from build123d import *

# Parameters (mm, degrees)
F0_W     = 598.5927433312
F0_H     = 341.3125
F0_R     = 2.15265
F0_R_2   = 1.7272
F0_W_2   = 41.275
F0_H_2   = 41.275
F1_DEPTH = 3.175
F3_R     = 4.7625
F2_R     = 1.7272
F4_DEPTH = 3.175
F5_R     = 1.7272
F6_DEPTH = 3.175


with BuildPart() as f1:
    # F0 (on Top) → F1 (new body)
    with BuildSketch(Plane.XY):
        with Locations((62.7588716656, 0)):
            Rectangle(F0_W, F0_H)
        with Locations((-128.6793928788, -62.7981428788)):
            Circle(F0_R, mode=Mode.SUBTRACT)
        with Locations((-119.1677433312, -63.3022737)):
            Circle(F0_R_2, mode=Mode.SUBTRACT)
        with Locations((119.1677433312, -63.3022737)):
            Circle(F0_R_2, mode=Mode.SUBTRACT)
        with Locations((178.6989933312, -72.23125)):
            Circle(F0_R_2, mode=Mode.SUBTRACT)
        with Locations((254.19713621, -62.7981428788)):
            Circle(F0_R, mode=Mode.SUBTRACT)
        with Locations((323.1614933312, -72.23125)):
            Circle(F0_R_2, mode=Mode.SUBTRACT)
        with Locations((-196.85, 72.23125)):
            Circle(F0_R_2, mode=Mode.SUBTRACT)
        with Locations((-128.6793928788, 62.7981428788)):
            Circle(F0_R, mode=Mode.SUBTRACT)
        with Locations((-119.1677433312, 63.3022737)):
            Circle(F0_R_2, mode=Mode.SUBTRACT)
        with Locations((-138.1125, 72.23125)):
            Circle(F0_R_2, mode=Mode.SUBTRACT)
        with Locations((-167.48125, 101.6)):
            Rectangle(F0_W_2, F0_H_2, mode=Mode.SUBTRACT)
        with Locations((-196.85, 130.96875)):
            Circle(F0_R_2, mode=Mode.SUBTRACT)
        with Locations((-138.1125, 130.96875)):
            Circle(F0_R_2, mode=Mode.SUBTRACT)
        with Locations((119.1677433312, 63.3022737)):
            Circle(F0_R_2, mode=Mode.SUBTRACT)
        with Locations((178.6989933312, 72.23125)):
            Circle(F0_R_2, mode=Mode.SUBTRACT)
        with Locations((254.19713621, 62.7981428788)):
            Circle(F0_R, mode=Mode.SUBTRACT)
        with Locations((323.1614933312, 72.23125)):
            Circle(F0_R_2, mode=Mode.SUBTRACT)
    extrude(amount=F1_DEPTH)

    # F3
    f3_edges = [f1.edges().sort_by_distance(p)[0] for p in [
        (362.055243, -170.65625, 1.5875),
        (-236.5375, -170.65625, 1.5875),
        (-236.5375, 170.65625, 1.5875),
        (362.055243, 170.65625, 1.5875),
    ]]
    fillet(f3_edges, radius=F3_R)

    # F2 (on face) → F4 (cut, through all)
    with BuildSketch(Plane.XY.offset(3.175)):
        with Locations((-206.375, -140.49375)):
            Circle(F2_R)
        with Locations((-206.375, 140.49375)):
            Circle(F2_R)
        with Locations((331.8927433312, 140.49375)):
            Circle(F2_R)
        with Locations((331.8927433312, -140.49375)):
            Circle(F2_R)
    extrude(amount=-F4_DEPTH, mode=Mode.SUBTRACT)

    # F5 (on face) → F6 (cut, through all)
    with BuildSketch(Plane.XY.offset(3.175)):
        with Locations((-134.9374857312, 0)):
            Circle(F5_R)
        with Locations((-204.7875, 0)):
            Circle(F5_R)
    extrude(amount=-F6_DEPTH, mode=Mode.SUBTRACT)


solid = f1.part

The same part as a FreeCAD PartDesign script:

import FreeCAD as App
import Part
import Sketcher
Q = App.Units.Quantity


def edges_at(feature, points):
    """Names of the edges that pass closest to the given points."""
    edges = feature.Shape.Edges
    near = lambda p: min(range(len(edges)), key=lambda i: edges[i].distToShape(Part.Vertex(*p))[0])
    return sorted({f"Edge{near(p) + 1}" for p in points})

doc = App.newDocument("Part")
body = doc.addObject("PartDesign::Body", "Body")

sketch1 = doc.addObject("Sketcher::SketchObject", "Sketch")
body.addObject(sketch1)
sketch1.AttachmentSupport = (doc.XY_Plane, [""])
sketch1.MapMode = "FlatFace"
sketch1.addGeometry([
    Part.LineSegment(App.Vector(-236.5375, 170.65625, 0), App.Vector(-236.5375, -170.65625, 0)),
    Part.LineSegment(App.Vector(-236.5375, -170.65625, 0), App.Vector(362.055243, -170.65625, 0)),
    Part.LineSegment(App.Vector(362.055243, -170.65625, 0), App.Vector(362.055243, 170.65625, 0)),
    Part.LineSegment(App.Vector(362.055243, 170.65625, 0), App.Vector(-236.5375, 170.65625, 0)),
    Part.Circle(App.Vector(-128.679393, -62.798143, 0), App.Vector(0, 0, 1), 2.15265),
    Part.Circle(App.Vector(-119.167743, -63.302274, 0), App.Vector(0, 0, 1), 1.7272),
    Part.Circle(App.Vector(119.167743, -63.302274, 0), App.Vector(0, 0, 1), 1.7272),
    Part.Circle(App.Vector(178.698993, -72.23125, 0), App.Vector(0, 0, 1), 1.7272),
    Part.Circle(App.Vector(254.197136, -62.798143, 0), App.Vector(0, 0, 1), 2.15265),
    Part.Circle(App.Vector(323.161493, -72.23125, 0), App.Vector(0, 0, 1), 1.7272),
    Part.Circle(App.Vector(-196.85, 72.23125, 0), App.Vector(0, 0, 1), 1.7272),
    Part.Circle(App.Vector(-138.1125, 72.23125, 0), App.Vector(0, 0, 1), 1.7272),
    Part.Circle(App.Vector(-128.679393, 62.798143, 0), App.Vector(0, 0, 1), 2.15265),
    Part.Circle(App.Vector(-119.167743, 63.302274, 0), App.Vector(0, 0, 1), 1.7272),
    Part.LineSegment(App.Vector(-146.84375, 80.9625, 0), App.Vector(-188.11875, 80.9625, 0)),
    Part.LineSegment(App.Vector(-188.11875, 80.9625, 0), App.Vector(-188.11875, 122.2375, 0)),
    Part.LineSegment(App.Vector(-188.11875, 122.2375, 0), App.Vector(-146.84375, 122.2375, 0)),
    Part.LineSegment(App.Vector(-146.84375, 122.2375, 0), App.Vector(-146.84375, 80.9625, 0)),
    Part.Circle(App.Vector(-196.85, 130.96875, 0), App.Vector(0, 0, 1), 1.7272),
    Part.Circle(App.Vector(-138.1125, 130.96875, 0), App.Vector(0, 0, 1), 1.7272),
    Part.Circle(App.Vector(119.167743, 63.302274, 0), App.Vector(0, 0, 1), 1.7272),
    Part.Circle(App.Vector(178.698993, 72.23125, 0), App.Vector(0, 0, 1), 1.7272),
    Part.Circle(App.Vector(254.197136, 62.798143, 0), App.Vector(0, 0, 1), 2.15265),
    Part.Circle(App.Vector(323.161493, 72.23125, 0), App.Vector(0, 0, 1), 1.7272),
], False)
sketch1.addConstraint([
    Sketcher.Constraint("Coincident", 0, 2, 1, 1),
    Sketcher.Constraint("Coincident", 1, 2, 2, 1),
    Sketcher.Constraint("Coincident", 2, 2, 3, 1),
    Sketcher.Constraint("Coincident", 3, 2, 0, 1),
    Sketcher.Constraint("Coincident", 14, 2, 15, 1),
    Sketcher.Constraint("Coincident", 15, 2, 16, 1),
    Sketcher.Constraint("Coincident", 16, 2, 17, 1),
    Sketcher.Constraint("Coincident", 17, 2, 14, 1),
    Sketcher.Constraint("Vertical", 0),
    Sketcher.Constraint("Horizontal", 1),
    Sketcher.Constraint("Vertical", 2),
    Sketcher.Constraint("Horizontal", 3),
    Sketcher.Constraint("Horizontal", 14),
    Sketcher.Constraint("Vertical", 15),
    Sketcher.Constraint("Horizontal", 16),
    Sketcher.Constraint("Vertical", 17),
    Sketcher.Constraint("Equal", 5, 6),
    Sketcher.Constraint("Equal", 6, 7),
    Sketcher.Constraint("Equal", 4, 8),
    Sketcher.Constraint("Equal", 7, 9),
    Sketcher.Constraint("Equal", 9, 10),
    Sketcher.Constraint("Equal", 10, 11),
    Sketcher.Constraint("Equal", 8, 12),
    Sketcher.Constraint("Equal", 11, 13),
    Sketcher.Constraint("Equal", 13, 18),
    Sketcher.Constraint("Equal", 18, 19),
    Sketcher.Constraint("Equal", 19, 20),
    Sketcher.Constraint("Equal", 20, 21),
    Sketcher.Constraint("Equal", 12, 22),
    Sketcher.Constraint("Equal", 21, 23),
    Sketcher.Constraint("Symmetric", 6, 3, 13, 3, -1, 1),
    Sketcher.Constraint("Symmetric", 5, 3, 20, 3, -1, 1),
    Sketcher.Constraint("Symmetric", 5, 3, 6, 3, -2),
    Sketcher.Constraint("Symmetric", 4, 3, 12, 3, -1),
    Sketcher.Constraint("Symmetric", 7, 3, 21, 3, -1),
    Sketcher.Constraint("Symmetric", 8, 3, 22, 3, -1),
    Sketcher.Constraint("Symmetric", 9, 3, 23, 3, -1),
    Sketcher.Constraint("Horizontal", 4, 3, 8, 3),
    Sketcher.Constraint("Horizontal", 7, 3, 9, 3),
    Sketcher.Constraint("Horizontal", 10, 3, 11, 3),
    Sketcher.Constraint("Horizontal", 18, 3, 19, 3),
    Sketcher.Constraint("Horizontal", 11, 3, 21, 3),
    Sketcher.Constraint("Vertical", 10, 3, 18, 3),
    Sketcher.Constraint("Vertical", 11, 3, 19, 3),
    Sketcher.Constraint("Equal", 16, 15),
    Sketcher.Constraint("Diameter", 5, Q("0.136 in")),
    Sketcher.Constraint("Diameter", 4, Q("0.1695 in")),
    Sketcher.Constraint("DistanceX", 14, 2, 14, 1, Q("1.625 in")),
    Sketcher.Constraint("DistanceY", 0, 2, 0, 1, Q("13.4375 in")),
    Sketcher.Constraint("DistanceX", 10, 3, -1, 1, Q("7.75 in")),
    Sketcher.Constraint("DistanceY", 7, 3, -1, 1, Q("2.84375 in")),
    Sketcher.Constraint("DistanceX", 11, 3, -1, 1, Q("5.4375 in")),
    Sketcher.Constraint("DistanceY", -1, 1, 18, 3, Q("5.15625 in")),
    Sketcher.Constraint("DistanceX", 0, 2, -1, 1, Q("9.3125 in")),
    Sketcher.Constraint("DistanceY", 0, 2, -1, 1, Q("6.71875 in")),
    Sketcher.Constraint("DistanceX", 14, 2, -1, 1, Q("7.40625 in")),
    Sketcher.Constraint("DistanceY", -1, 1, 14, 2, Q("3.1875 in")),
    Sketcher.Constraint("DistanceX", 6, 3, 7, 3, Q("2.34375 in")),
    Sketcher.Constraint("DistanceX", 7, 3, 9, 3, Q("5.6875 in")),
    Sketcher.Constraint("DistanceX", 9, 3, 1, 2, Q("1.53125 in")),
    Sketcher.Constraint("DistanceX", 1, 1, 1, 2, Q("598.592743 mm")),
    Sketcher.Constraint("DistanceX", 4, 3, 5, 3, Q("9.51165 mm")),
    Sketcher.Constraint("DistanceY", 5, 3, 4, 3, Q("0.504131 mm")),
    Sketcher.Constraint("DistanceX", 5, 3, 8, 3, Q("373.36488 mm")),
    Sketcher.Constraint("DistanceY", 4, 3, -1, 1, Q("62.798143 mm")),
])
pad1 = doc.addObject("PartDesign::Pad", "Pad")
body.addObject(pad1)
pad1.Profile = sketch1
pad1.Length = Q("0.125 in")
doc.recompute()

fillet = doc.addObject("PartDesign::Fillet", "Fillet")
body.addObject(fillet)
fillet.Base = (pad1, edges_at(pad1, [
    (362.055, -170.656, 1.587),
    (-236.537, -170.656, 1.587),
    (-236.537, 170.656, 1.587),
    (362.055, 170.656, 1.587),
]))
fillet.Radius = Q("0.1875 in")

sketch2 = doc.addObject("Sketcher::SketchObject", "Sketch001")
body.addObject(sketch2)
sketch2.AttachmentSupport = (doc.XY_Plane, [""])
sketch2.MapMode = "FlatFace"
sketch2.AttachmentOffset = App.Placement(App.Vector(0, 0, 0.125 * 25.4), App.Rotation())
sketch2.addGeometry([
    Part.Circle(App.Vector(-206.375, -140.49375, 0), App.Vector(0, 0, 1), 1.7272),
    Part.Circle(App.Vector(-206.375, 140.49375, 0), App.Vector(0, 0, 1), 1.7272),
    Part.Circle(App.Vector(331.892743, 140.49375, 0), App.Vector(0, 0, 1), 1.7272),
    Part.Circle(App.Vector(331.892743, -140.49375, 0), App.Vector(0, 0, 1), 1.7272),
], False)
sketch2.addConstraint([
    Sketcher.Constraint("Equal", 0, 1),
    Sketcher.Constraint("Equal", 1, 2),
    Sketcher.Constraint("Equal", 2, 3),
    Sketcher.Constraint("Symmetric", 0, 3, 1, 3, -1),
    Sketcher.Constraint("Symmetric", 2, 3, 3, 3, -1),
    Sketcher.Constraint("Horizontal", 1, 3, 2, 3),
    Sketcher.Constraint("Diameter", 0, Q("0.136 in")),
    Sketcher.Constraint("DistanceX", 0, 3, -1, 1, Q("8.125 in")),
    Sketcher.Constraint("DistanceY", 0, 3, -1, 1, Q("5.53125 in")),
    Sketcher.Constraint("DistanceX", -1, 1, 2, 3, Q("331.892743 mm")),
])
pocket1 = doc.addObject("PartDesign::Pocket", "Pocket")
body.addObject(pocket1)
pocket1.Profile = sketch2
pocket1.Type = "ThroughAll"

sketch3 = doc.addObject("Sketcher::SketchObject", "Sketch002")
body.addObject(sketch3)
sketch3.AttachmentSupport = (doc.XY_Plane, [""])
sketch3.MapMode = "FlatFace"
sketch3.AttachmentOffset = App.Placement(App.Vector(0, 0, 0.125 * 25.4), App.Rotation())
sketch3.addGeometry([
    Part.Circle(App.Vector(-134.937486, 0, 0), App.Vector(0, 0, 1), 1.7272),
    Part.Circle(App.Vector(-204.7875, 0, 0), App.Vector(0, 0, 1), 1.7272),
], False)
sketch3.addConstraint([
    Sketcher.Constraint("Equal", 0, 1),
    Sketcher.Constraint("PointOnObject", 0, 3, -1),
    Sketcher.Constraint("PointOnObject", 1, 3, -1),
    Sketcher.Constraint("Diameter", 0, Q("0.136 in")),
    Sketcher.Constraint("DistanceX", 1, 3, -1, 1, Q("8.0625 in")),
    Sketcher.Constraint("DistanceX", 0, 3, -1, 1, Q("134.937486 mm")),
])
pocket2 = doc.addObject("PartDesign::Pocket", "Pocket001")
body.addObject(pocket2)
pocket2.Profile = sketch3
pocket2.Type = "ThroughAll"

doc.recompute()
